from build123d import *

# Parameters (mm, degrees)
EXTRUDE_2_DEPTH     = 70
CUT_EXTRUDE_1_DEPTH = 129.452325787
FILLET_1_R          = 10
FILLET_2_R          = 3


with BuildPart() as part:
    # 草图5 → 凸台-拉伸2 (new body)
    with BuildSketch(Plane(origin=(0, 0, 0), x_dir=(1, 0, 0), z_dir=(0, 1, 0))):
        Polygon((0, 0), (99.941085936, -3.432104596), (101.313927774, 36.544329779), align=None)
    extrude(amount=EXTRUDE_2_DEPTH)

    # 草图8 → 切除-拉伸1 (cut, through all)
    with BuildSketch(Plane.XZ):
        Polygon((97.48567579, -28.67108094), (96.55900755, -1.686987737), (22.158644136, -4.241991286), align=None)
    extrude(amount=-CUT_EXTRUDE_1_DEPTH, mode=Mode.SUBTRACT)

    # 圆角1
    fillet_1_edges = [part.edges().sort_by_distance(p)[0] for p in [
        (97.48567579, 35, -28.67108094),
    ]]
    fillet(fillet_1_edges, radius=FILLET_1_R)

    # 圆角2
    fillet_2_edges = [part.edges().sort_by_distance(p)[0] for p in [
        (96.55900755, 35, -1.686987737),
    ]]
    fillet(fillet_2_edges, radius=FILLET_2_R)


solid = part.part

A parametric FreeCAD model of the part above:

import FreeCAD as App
import Part
import Sketcher


def edges_at(feature, points):
    """Names of the edges that pass closest to the given points."""
    edges = feature.Shape.Edges
    near = lambda p: min(range(len(edges)), key=lambda i: edges[i].distToShape(Part.Vertex(*p))[0])
    return sorted({f"Edge{near(p) + 1}" for p in points})


def add_polygon(sketch, points):
    """Adds a closed chain of lines whose ends are joined by coincident constraints."""
    first, n = sketch.GeometryCount, len(points)
    for a, b in zip(points, points[1:] + points[:1]):
        sketch.addGeometry(Part.LineSegment(App.Vector(*a, 0), App.Vector(*b, 0)), False)
    for i in range(n):
        sketch.addConstraint(Sketcher.Constraint("Coincident", first + i, 2, first + (i + 1) % n, 1))

doc = App.newDocument("Part")
body = doc.addObject("PartDesign::Body", "Body")

# Sketch on XZ plane
sketch1 = doc.addObject("Sketcher::SketchObject", "Sketch")
body.addObject(sketch1)
sketch1.AttachmentSupport = (doc.XZ_Plane, [""])
sketch1.MapMode = "FlatFace"
add_polygon(sketch1, [(0, 0), (99.941086, 3.432105), (101.313928, -36.54433)])  # lines 0-2
sketch1.addConstraint(Sketcher.Constraint("Coincident", 2, 2, -1, 1))
sketch1.addConstraint(Sketcher.Constraint("Perpendicular", 0, 1))
sketch1.addConstraint(Sketcher.Constraint("Distance", 0, 100.0))
sketch1.addConstraint(Sketcher.Constraint("Distance", 1, 40.0))
sketch1.addConstraint(Sketcher.Constraint("DistanceY", 1, 2, -1, 1, 36.54433))
pad1 = doc.addObject("PartDesign::Pad", "Pad")
body.addObject(pad1)
pad1.Profile = sketch1
pad1.Length = 70
pad1.Reversed = True

# Sketch on XZ plane
sketch2 = doc.addObject("Sketcher::SketchObject", "Sketch001")
body.addObject(sketch2)
sketch2.AttachmentSupport = (doc.XZ_Plane, [""])
sketch2.MapMode = "FlatFace"
add_polygon(sketch2, [(97.485676, -28.671081), (96.559008, -1.686988), (22.158644, -4.241991)])  # lines 0-2
sketch2.addConstraint(Sketcher.Constraint("Perpendicular", 0, 1))
sketch2.addConstraint(Sketcher.Constraint("Distance", 0, 27.0))
sketch2.addConstraint(Sketcher.Constraint("Distance", 1, 74.444222))
sketch2.addConstraint(Sketcher.Constraint("DistanceY", 1, 2, -1, 1, 4.241991))
sketch2.addConstraint(Sketcher.Constraint("DistanceY", 2, 2, -1, 1, 28.671081))
sketch2.addConstraint(Sketcher.Constraint("DistanceX", -1, 1, 0, 2, 96.559008))
pocket1 = doc.addObject("PartDesign::Pocket", "Pocket")
body.addObject(pocket1)
pocket1.Profile = sketch2
pocket1.Type = "ThroughAll"
doc.recompute()

fillet = doc.addObject("PartDesign::Fillet", "Fillet")
body.addObject(fillet)
fillet.Base = (pocket1, edges_at(pocket1, [(97.486, 35, -28.671)]))
fillet.Radius = 10
doc.recompute()

fillet2 = doc.addObject("PartDesign::Fillet", "Fillet001")
body.addObject(fillet2)
fillet2.Base = (fillet, edges_at(fillet, [(96.559, 35, -1.687)]))
fillet2.Radius = 3

doc.recompute()
